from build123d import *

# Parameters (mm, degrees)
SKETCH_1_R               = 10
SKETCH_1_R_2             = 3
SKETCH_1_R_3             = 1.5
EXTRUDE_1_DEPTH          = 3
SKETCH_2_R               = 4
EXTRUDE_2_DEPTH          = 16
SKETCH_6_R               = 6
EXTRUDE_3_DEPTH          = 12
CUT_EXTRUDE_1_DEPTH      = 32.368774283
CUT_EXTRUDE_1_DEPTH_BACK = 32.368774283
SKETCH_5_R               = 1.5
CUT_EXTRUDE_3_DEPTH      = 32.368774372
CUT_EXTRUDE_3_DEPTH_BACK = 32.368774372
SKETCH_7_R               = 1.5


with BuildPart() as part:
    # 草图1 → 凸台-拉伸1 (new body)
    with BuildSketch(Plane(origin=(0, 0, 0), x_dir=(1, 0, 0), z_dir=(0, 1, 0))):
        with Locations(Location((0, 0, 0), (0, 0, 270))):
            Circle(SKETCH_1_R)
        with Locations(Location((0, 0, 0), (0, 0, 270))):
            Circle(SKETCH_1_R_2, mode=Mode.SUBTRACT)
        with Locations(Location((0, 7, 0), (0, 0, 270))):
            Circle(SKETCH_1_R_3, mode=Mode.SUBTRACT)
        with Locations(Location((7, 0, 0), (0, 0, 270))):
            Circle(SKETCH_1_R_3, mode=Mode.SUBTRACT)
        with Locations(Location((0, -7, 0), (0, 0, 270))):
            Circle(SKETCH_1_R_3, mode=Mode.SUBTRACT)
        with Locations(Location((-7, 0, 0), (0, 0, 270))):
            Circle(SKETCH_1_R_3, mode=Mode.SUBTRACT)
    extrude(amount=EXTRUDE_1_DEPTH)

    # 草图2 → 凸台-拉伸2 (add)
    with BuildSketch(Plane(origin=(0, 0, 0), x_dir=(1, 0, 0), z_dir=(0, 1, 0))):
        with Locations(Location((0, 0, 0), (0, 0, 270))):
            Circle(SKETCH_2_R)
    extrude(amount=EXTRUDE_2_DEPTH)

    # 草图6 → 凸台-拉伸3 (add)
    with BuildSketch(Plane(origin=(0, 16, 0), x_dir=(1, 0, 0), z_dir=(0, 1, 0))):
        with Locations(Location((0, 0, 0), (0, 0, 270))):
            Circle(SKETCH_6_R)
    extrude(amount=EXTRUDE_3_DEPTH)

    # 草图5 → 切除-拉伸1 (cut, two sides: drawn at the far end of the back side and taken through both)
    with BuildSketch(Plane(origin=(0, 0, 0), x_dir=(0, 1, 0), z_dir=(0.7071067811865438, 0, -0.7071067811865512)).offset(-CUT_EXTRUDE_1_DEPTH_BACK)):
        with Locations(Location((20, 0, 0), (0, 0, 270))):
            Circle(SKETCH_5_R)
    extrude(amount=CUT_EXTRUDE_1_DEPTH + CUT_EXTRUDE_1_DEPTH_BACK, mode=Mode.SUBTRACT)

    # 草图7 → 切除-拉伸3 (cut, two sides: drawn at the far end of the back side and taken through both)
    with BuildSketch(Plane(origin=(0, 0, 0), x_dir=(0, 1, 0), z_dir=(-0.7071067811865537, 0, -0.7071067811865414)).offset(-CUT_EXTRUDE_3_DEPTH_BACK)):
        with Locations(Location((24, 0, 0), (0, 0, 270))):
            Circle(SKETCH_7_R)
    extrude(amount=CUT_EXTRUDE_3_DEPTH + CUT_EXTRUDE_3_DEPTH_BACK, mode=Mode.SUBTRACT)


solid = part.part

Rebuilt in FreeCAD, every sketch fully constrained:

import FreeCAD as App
import Part
import Sketcher

V = App.Vector
Q = App.Units.Quantity

doc = App.newDocument("Part")
params = doc.addObject("Spreadsheet::Sheet", "Params")
for row, (alias, value) in enumerate([
    ("sketch1_diameter", "20 mm"),
    ("sketch1_diameter2", "3 mm"),
    ("sketch1_diameter3", "6 mm"),
    ("pad1_length", "3 mm"),
    ("sketch2_diameter", "8 mm"),
    ("pad2_length", "16 mm"),
    ("sketch3_diameter", "12 mm"),
    ("pad3_length", "12 mm"),
    ("sketch4_diameter", "3 mm"),
    ("sketch5_diameter", "3 mm"),
], start=1):
    params.set(f"A{row}", alias)
    params.set(f"B{row}", "=" + value)
    params.setAlias(f"B{row}", alias)

body = doc.addObject("PartDesign::Body", "Body")

sketch1 = body.newObject("Sketcher::SketchObject", "Sketch")
sketch1.AttachmentSupport = (doc.getObject("XZ_Plane"), [""])
sketch1.MapMode = "FlatFace"
sketch1.addGeometry([
    Part.Circle(V(0, 0, 0), V(0, 0, 1), 10),
    Part.Circle(V(0, -7, 0), V(0, 0, 1), 1.5),
    Part.Circle(V(-7, 0, 0), V(0, 0, 1), 1.5),
    Part.Circle(V(7, 0, 0), V(0, 0, 1), 1.5),
    Part.Circle(V(0, 0, 0), V(0, 0, 1), 3),
    Part.Circle(V(0, 7, 0), V(0, 0, 1), 1.5),
], False)
sketch1.addConstraint([
    Sketcher.Constraint("Coincident", 0, 3, -1, 1),
    Sketcher.Constraint("Coincident", 4, 3, -1, 1),
    Sketcher.Constraint("Equal", 1, 2),
    Sketcher.Constraint("Equal", 2, 3),
    Sketcher.Constraint("Equal", 3, 5),
    Sketcher.Constraint("Symmetric", 2, 3, 3, 3, -1, 1),
    Sketcher.Constraint("Symmetric", 1, 3, 5, 3, -1, 1),
    Sketcher.Constraint("PointOnObject", 1, 3, -2),
    Sketcher.Constraint("PointOnObject", 2, 3, -1),
    Sketcher.Constraint("Diameter", 0, Q("20 mm")),
    Sketcher.Constraint("Diameter", 1, Q("3 mm")),
    Sketcher.Constraint("Diameter", 4, Q("6 mm")),
    Sketcher.Constraint("DistanceY", 1, 3, -1, 1, Q("7 mm")),
    Sketcher.Constraint("DistanceX", 2, 3, -1, 1, Q("7 mm")),
])
sketch1.setExpression("Constraints[9]", "Params.sketch1_diameter")
sketch1.setExpression("Constraints[10]", "Params.sketch1_diameter2")
sketch1.setExpression("Constraints[11]", "Params.sketch1_diameter3")
pad1 = body.newObject("PartDesign::Pad", "Pad")
pad1.Profile = sketch1
pad1.setExpression("Length", "Params.pad1_length")
pad1.Reversed = True

sketch2 = body.newObject("Sketcher::SketchObject", "Sketch001")
sketch2.AttachmentSupport = (doc.getObject("XZ_Plane"), [""])
sketch2.MapMode = "FlatFace"
sketch2.addGeometry(Part.Circle(V(0, 0, 0), V(0, 0, 1), 4), False)
sketch2.addConstraint([
    Sketcher.Constraint("Coincident", 0, 3, -1, 1),
    Sketcher.Constraint("Diameter", 0, Q("8 mm")),
])
sketch2.setExpression("Constraints[1]", "Params.sketch2_diameter")
pad2 = body.newObject("PartDesign::Pad", "Pad001")
pad2.Profile = sketch2
pad2.setExpression("Length", "Params.pad2_length")
pad2.Reversed = True

sketch3 = body.newObject("Sketcher::SketchObject", "Sketch002")
sketch3.AttachmentSupport = (doc.getObject("XZ_Plane"), [""])
sketch3.MapMode = "FlatFace"
sketch3.AttachmentOffset = App.Placement(V(0, 0, -16), App.Rotation())
sketch3.addGeometry(Part.Circle(V(0, 0, 0), V(0, 0, 1), 6), False)
sketch3.addConstraint([
    Sketcher.Constraint("Coincident", 0, 3, -1, 1),
    Sketcher.Constraint("Diameter", 0, Q("12 mm")),
])
sketch3.setExpression("Constraints[1]", "Params.sketch3_diameter")
pad3 = body.newObject("PartDesign::Pad", "Pad002")
pad3.Profile = sketch3
pad3.setExpression("Length", "Params.pad3_length")
pad3.Reversed = True

sketch4 = body.newObject("Sketcher::SketchObject", "Sketch003")
sketch4.Placement = App.Placement(V(0, 0, 0), App.Rotation(V(0, 1, 0), V(0.707106781, 0, 0.707106781), V(0.707106781, 0, -0.707106781), "ZXY"))
sketch4.addGeometry(Part.Circle(V(20, 0, 0), V(0, 0, 1), 1.5), False)
sketch4.addConstraint([
    Sketcher.Constraint("PointOnObject", 0, 3, -1),
    Sketcher.Constraint("Diameter", 0, Q("3 mm")),
    Sketcher.Constraint("DistanceX", -1, 1, 0, 3, Q("20 mm")),
])
sketch4.setExpression("Constraints[1]", "Params.sketch4_diameter")
pocket1 = body.newObject("PartDesign::Pocket", "Pocket")
pocket1.Profile = sketch4
pocket1.Type = "ThroughAll"
pocket1.Midplane = True

sketch5 = body.newObject("Sketcher::SketchObject", "Sketch004")
sketch5.Placement = App.Placement(V(0, 0, 0), App.Rotation(V(0, 1, 0), V(0.707106781, 0, -0.707106781), V(-0.707106781, 0, -0.707106781), "ZXY"))
sketch5.addGeometry(Part.Circle(V(24, 0, 0), V(0, 0, 1), 1.5), False)
sketch5.addConstraint([
    Sketcher.Constraint("PointOnObject", 0, 3, -1),
    Sketcher.Constraint("Diameter", 0, Q("3 mm")),
    Sketcher.Constraint("DistanceX", -1, 1, 0, 3, Q("24 mm")),
])
sketch5.setExpression("Constraints[1]", "Params.sketch5_diameter")
pocket2 = body.newObject("PartDesign::Pocket", "Pocket001")
pocket2.Profile = sketch5
pocket2.Type = "ThroughAll"
pocket2.Midplane = True

doc.recompute()
